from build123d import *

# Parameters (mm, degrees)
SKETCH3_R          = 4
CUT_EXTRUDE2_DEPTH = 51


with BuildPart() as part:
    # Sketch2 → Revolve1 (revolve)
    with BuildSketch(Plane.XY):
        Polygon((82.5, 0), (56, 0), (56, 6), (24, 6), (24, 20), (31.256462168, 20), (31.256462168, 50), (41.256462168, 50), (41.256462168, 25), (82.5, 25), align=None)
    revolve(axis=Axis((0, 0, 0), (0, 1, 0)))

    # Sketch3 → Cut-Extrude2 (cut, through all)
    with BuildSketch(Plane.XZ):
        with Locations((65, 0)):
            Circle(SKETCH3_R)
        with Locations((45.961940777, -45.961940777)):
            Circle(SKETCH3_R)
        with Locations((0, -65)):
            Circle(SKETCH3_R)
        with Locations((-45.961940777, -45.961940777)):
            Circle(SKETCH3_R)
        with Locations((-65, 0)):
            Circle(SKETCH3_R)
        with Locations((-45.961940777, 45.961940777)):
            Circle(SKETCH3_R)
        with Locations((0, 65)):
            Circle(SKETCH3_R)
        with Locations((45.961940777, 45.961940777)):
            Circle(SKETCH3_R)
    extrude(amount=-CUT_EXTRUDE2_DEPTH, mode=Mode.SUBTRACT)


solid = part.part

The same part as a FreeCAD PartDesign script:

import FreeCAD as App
import Part
import Sketcher

V = App.Vector
Q = App.Units.Quantity


def add_polygon(sketch, points):
    """Adds a closed chain of lines whose ends are joined by coincident constraints."""
    first, n = sketch.GeometryCount, len(points)
    for a, b in zip(points, points[1:] + points[:1]):
        sketch.addGeometry(Part.LineSegment(App.Vector(*a, 0), App.Vector(*b, 0)), False)
    for i in range(n):
        sketch.addConstraint(Sketcher.Constraint("Coincident", first + i, 2, first + (i + 1) % n, 1))

doc = App.newDocument("Part")
body = doc.addObject("PartDesign::Body", "Body")

# Sketch on XY plane
sketch1 = body.newObject("Sketcher::SketchObject", "Sketch")
sketch1.AttachmentSupport = (doc.getObject("XY_Plane"), [""])
sketch1.MapMode = "FlatFace"
add_polygon(sketch1, [(56, 0), (82.5, 0), (82.5, 25), (41.256462, 25), (41.256462, 50), (31.256462, 50), (31.256462, 20), (24, 20), (24, 6), (56, 6)])  # lines 0-9
sketch1.addConstraint([
    Sketcher.Constraint("Horizontal", 0),
    Sketcher.Constraint("Vertical", 1),
    Sketcher.Constraint("Horizontal", 2),
    Sketcher.Constraint("Vertical", 3),
    Sketcher.Constraint("Horizontal", 4),
    Sketcher.Constraint("Vertical", 5),
    Sketcher.Constraint("Horizontal", 6),
    Sketcher.Constraint("Vertical", 7),
    Sketcher.Constraint("Horizontal", 8),
    Sketcher.Constraint("Vertical", 9),
    Sketcher.Constraint("PointOnObject", 0, 2, -1),
    Sketcher.Constraint("Equal", 1, 3),
    Sketcher.Constraint("DistanceX", 4, 2, 4, 1, Q("10 mm")),
    Sketcher.Constraint("DistanceX", 8, 1, 8, 2, Q("32 mm")),
    Sketcher.Constraint("DistanceY", 1, 1, 1, 2, Q("25 mm")),
    Sketcher.Constraint("DistanceY", 5, 2, 5, 1, Q("30 mm")),
    Sketcher.Constraint("DistanceY", 7, 2, 7, 1, Q("14 mm")),
    Sketcher.Constraint("DistanceX", 0, 1, 0, 2, Q("26.5 mm")),
    Sketcher.Constraint("DistanceX", -1, 1, 6, 2, Q("24 mm")),
    Sketcher.Constraint("DistanceX", 2, 2, 2, 1, Q("41.243538 mm")),
])
revolution = body.newObject("PartDesign::Revolution", "Revolution")
revolution.Profile = sketch1
revolution.ReferenceAxis = (sketch1, ["V_Axis"])
revolution.Angle = 360

# Sketch on XZ plane
sketch2 = body.newObject("Sketcher::SketchObject", "Sketch001")
sketch2.AttachmentSupport = (doc.getObject("XZ_Plane"), [""])
sketch2.MapMode = "FlatFace"
sketch2.addGeometry([
    Part.Circle(V(65, 0, 0), V(0, 0, 1), 4),  # 0
    Part.Circle(V(45.961941, -45.961941, 0), V(0, 0, 1), 4),  # 1
    Part.Circle(V(0, -65, 0), V(0, 0, 1), 4),  # 2
    Part.Circle(V(-45.961941, -45.961941, 0), V(0, 0, 1), 4),  # 3
    Part.Circle(V(-65, 0, 0), V(0, 0, 1), 4),  # 4
    Part.Circle(V(-45.961941, 45.961941, 0), V(0, 0, 1), 4),  # 5
    Part.Circle(V(0, 65, 0), V(0, 0, 1), 4),  # 6
    Part.Circle(V(45.961941, 45.961941, 0), V(0, 0, 1), 4),  # 7
], False)
sketch2.addConstraint([
    Sketcher.Constraint("Equal", 0, 1),
    Sketcher.Constraint("Equal", 1, 2),
    Sketcher.Constraint("Equal", 2, 3),
    Sketcher.Constraint("Equal", 3, 4),
    Sketcher.Constraint("Equal", 4, 5),
    Sketcher.Constraint("Equal", 5, 6),
    Sketcher.Constraint("Equal", 6, 7),
    Sketcher.Constraint("Symmetric", 0, 3, 4, 3, -1, 1),
    Sketcher.Constraint("Symmetric", 1, 3, 5, 3, -1, 1),
    Sketcher.Constraint("Symmetric", 2, 3, 6, 3, -1, 1),
    Sketcher.Constraint("Symmetric", 3, 3, 7, 3, -1, 1),
    Sketcher.Constraint("Symmetric", 1, 3, 3, 3, -2),
    Sketcher.Constraint("PointOnObject", 0, 3, -1),
    Sketcher.Constraint("PointOnObject", 2, 3, -2),
    Sketcher.Constraint("Diameter", 0, Q("8 mm")),
    Sketcher.Constraint("DistanceX", -1, 1, 0, 3, Q("65 mm")),
    Sketcher.Constraint("DistanceY", 2, 3, -1, 1, Q("65 mm")),
    Sketcher.Constraint("DistanceX", -1, 1, 1, 3, Q("45.961941 mm")),
    Sketcher.Constraint("DistanceY", 1, 3, -1, 1, Q("45.961941 mm")),
])
pocket1 = body.newObject("PartDesign::Pocket", "Pocket")
pocket1.Profile = sketch2
pocket1.Type = "ThroughAll"

doc.recompute()
